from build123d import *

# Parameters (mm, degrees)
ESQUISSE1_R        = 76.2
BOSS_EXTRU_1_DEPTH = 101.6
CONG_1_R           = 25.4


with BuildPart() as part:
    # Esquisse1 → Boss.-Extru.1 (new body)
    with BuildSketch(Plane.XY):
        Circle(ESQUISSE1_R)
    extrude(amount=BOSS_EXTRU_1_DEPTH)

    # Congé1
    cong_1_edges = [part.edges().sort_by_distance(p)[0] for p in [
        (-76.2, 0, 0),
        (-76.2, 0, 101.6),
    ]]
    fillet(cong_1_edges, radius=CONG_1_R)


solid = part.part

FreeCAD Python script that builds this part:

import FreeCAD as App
import Part
import Sketcher

V = App.Vector
Q = App.Units.Quantity


def edges_at(feature, points):
    """Names of the edges that pass closest to the given points."""
    edges = feature.Shape.Edges
    near = lambda p: min(range(len(edges)), key=lambda i: edges[i].distToShape(Part.Vertex(*p))[0])
    return sorted({f"Edge{near(p) + 1}" for p in points})

doc = App.newDocument("Part")
body = doc.addObject("PartDesign::Body", "Body")

sketch1 = body.newObject("Sketcher::SketchObject", "Sketch")
sketch1.AttachmentSupport = (doc.getObject("XY_Plane"), [""])
sketch1.MapMode = "FlatFace"
sketch1.addGeometry(Part.Circle(V(0, 0, 0), V(0, 0, 1), 76), False)
sketch1.addConstraint([
    Sketcher.Constraint("Coincident", 0, 3, -1, 1),
    Sketcher.Constraint("Diameter", 0, Q("6 in")),
])
pad1 = body.newObject("PartDesign::Pad", "Pad")
pad1.Profile = sketch1
pad1.Length = Q("4 in")
doc.recompute()

fillet = body.newObject("PartDesign::Fillet", "Fillet")
fillet.Base = (pad1, edges_at(pad1, [(-76.2, 0, 0), (-76.2, 0, 101.6)]))
fillet.Radius = Q("1 in")

doc.recompute()
